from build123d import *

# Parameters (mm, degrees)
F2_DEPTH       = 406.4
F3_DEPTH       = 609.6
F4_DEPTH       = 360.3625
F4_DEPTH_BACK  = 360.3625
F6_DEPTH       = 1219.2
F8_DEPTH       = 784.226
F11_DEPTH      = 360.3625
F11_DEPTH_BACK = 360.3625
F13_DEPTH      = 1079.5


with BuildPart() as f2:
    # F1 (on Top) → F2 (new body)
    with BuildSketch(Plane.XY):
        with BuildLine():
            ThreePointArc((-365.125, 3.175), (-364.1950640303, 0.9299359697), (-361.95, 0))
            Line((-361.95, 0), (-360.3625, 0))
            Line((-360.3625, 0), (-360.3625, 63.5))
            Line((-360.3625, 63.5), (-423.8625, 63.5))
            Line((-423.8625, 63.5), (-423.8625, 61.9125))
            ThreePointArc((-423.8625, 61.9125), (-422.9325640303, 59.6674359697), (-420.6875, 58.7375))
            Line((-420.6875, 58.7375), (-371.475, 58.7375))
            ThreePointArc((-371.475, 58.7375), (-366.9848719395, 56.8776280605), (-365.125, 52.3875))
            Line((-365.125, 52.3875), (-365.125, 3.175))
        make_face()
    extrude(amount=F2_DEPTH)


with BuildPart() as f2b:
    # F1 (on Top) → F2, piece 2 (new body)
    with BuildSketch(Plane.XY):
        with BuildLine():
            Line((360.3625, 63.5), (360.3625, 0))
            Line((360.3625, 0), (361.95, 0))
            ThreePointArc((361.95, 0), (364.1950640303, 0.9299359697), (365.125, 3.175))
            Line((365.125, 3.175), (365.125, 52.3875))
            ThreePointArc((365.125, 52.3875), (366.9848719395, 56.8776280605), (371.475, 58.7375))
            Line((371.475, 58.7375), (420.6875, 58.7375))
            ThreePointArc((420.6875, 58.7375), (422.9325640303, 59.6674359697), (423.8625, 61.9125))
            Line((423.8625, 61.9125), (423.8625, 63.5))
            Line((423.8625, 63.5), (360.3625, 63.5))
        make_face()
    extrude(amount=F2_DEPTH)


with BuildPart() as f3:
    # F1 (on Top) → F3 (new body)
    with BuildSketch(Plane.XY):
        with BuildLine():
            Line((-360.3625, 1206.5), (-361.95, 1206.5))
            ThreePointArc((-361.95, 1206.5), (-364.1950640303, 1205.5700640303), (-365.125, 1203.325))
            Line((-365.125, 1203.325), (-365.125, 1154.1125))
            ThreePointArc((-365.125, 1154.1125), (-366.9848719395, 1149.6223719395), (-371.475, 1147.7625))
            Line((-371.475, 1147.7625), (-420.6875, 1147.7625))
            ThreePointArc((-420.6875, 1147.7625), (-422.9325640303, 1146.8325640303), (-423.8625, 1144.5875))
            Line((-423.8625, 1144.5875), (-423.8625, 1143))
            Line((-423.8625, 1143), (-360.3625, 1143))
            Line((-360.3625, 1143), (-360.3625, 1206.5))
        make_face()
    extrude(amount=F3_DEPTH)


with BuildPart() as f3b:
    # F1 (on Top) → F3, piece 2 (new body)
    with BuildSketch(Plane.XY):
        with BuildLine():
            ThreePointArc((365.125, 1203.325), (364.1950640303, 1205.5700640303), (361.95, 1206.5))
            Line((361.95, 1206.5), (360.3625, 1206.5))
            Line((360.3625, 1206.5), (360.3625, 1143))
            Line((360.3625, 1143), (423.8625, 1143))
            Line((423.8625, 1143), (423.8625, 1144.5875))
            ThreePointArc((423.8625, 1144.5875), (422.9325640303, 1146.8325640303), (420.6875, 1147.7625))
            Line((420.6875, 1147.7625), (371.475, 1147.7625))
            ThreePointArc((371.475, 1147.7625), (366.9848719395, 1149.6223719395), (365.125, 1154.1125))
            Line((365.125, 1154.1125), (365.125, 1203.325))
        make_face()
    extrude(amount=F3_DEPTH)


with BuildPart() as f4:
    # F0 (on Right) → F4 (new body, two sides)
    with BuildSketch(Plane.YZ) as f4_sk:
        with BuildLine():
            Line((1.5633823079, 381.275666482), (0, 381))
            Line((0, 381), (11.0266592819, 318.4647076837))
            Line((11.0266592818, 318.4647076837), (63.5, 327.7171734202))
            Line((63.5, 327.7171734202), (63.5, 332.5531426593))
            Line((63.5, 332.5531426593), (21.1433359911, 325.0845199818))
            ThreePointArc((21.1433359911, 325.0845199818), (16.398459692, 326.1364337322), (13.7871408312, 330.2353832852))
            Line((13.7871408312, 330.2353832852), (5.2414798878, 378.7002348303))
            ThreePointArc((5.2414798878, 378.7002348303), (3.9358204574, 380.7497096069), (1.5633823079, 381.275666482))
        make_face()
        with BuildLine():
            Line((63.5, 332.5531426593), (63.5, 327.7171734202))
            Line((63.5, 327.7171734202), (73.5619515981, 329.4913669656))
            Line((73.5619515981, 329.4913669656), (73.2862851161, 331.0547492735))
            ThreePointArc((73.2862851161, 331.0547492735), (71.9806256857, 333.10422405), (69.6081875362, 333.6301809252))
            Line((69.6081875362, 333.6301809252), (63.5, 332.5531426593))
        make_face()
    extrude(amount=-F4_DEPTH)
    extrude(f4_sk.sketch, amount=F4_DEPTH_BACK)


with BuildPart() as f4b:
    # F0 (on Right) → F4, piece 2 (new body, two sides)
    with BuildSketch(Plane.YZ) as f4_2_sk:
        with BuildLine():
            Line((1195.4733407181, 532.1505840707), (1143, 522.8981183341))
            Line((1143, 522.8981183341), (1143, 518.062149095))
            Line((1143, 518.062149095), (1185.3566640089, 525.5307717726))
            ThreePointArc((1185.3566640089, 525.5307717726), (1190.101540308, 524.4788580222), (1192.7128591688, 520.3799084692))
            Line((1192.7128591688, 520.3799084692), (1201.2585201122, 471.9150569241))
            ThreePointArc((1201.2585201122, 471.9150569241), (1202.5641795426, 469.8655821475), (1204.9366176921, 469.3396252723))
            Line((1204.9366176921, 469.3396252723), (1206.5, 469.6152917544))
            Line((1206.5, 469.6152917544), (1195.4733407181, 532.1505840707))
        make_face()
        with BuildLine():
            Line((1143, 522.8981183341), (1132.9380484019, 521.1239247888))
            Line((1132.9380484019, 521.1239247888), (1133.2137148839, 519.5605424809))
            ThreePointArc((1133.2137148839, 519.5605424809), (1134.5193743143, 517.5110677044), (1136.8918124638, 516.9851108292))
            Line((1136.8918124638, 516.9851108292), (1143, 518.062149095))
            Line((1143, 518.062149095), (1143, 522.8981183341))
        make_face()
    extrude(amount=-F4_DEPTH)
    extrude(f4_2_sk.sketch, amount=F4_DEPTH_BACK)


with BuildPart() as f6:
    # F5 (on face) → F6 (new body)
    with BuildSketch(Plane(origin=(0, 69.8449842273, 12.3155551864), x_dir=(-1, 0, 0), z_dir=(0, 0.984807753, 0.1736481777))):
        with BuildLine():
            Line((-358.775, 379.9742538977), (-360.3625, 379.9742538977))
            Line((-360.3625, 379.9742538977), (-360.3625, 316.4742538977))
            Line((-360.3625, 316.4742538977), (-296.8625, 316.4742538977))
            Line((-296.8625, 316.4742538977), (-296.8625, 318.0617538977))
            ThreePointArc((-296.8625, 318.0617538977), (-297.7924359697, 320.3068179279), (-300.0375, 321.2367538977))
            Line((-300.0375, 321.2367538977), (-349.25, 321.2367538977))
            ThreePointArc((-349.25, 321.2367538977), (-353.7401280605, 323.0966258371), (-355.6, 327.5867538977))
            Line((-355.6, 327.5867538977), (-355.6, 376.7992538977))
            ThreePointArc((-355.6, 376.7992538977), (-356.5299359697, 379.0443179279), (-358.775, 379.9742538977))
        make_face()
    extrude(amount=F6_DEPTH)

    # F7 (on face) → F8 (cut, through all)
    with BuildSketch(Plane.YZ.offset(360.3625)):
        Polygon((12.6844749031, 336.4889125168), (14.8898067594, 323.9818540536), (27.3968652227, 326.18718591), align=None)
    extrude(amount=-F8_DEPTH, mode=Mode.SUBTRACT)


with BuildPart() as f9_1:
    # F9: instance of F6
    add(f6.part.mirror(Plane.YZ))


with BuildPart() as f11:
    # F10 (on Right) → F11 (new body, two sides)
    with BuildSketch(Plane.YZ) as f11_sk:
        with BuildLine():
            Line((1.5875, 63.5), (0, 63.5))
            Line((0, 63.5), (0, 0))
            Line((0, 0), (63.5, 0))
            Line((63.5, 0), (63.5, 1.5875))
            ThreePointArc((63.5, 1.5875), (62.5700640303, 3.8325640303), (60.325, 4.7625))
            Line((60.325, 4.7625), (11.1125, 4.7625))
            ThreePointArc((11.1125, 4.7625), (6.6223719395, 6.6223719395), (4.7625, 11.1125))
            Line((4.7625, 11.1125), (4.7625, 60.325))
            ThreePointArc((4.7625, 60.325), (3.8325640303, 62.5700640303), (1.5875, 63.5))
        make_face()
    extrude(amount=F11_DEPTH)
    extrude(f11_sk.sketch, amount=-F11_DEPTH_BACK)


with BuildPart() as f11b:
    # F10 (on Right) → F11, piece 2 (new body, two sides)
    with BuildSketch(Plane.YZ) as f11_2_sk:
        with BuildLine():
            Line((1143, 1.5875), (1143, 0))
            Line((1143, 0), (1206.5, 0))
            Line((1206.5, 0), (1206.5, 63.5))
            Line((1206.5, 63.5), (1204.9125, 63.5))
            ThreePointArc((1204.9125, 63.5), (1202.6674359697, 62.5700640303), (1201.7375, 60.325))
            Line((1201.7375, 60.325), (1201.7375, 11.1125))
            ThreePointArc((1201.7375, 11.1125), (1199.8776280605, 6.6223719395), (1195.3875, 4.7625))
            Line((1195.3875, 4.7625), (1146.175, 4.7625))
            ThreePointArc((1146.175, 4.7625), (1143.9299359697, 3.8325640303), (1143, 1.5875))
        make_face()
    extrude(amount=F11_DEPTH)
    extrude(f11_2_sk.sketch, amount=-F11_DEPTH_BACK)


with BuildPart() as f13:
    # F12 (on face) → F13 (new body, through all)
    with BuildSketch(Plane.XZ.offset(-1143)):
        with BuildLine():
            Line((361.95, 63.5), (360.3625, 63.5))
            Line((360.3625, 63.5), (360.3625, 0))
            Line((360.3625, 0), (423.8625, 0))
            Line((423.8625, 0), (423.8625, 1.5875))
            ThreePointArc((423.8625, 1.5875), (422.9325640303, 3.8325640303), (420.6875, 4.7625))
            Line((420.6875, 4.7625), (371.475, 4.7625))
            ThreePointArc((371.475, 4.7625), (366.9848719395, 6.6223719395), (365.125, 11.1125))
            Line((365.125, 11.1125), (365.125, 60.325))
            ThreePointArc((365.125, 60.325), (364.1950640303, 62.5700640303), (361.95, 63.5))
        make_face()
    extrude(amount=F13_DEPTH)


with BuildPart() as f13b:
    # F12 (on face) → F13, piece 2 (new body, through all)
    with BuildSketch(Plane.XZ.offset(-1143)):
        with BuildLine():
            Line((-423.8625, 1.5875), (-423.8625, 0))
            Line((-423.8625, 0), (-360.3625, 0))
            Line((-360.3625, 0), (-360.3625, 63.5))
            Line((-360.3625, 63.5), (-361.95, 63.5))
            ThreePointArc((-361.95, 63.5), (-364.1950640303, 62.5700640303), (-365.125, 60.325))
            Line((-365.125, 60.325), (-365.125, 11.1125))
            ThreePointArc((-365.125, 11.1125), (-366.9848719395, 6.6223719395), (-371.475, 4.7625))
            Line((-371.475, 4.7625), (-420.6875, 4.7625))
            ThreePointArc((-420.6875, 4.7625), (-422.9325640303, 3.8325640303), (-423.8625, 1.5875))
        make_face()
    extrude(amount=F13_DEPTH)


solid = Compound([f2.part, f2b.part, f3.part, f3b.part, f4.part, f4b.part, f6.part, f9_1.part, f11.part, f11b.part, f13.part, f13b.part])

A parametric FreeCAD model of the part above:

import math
import FreeCAD as App
import Part
import Sketcher

V = App.Vector
Q = App.Units.Quantity


def add_polygon(sketch, points):
    """Adds a closed chain of lines whose ends are joined by coincident constraints."""
    first, n = sketch.GeometryCount, len(points)
    for a, b in zip(points, points[1:] + points[:1]):
        sketch.addGeometry(Part.LineSegment(App.Vector(*a, 0), App.Vector(*b, 0)), False)
    for i in range(n):
        sketch.addConstraint(Sketcher.Constraint("Coincident", first + i, 2, first + (i + 1) % n, 1))

doc = App.newDocument("Part")
params = doc.addObject("Spreadsheet::Sheet", "Params")
for row, (alias, value) in enumerate([
    ("sketch1_radius", "0.25 in"),
    ("sketch1_width", "2.5 in"),
    ("sketch1_radius2", "0.125 in"),
    ("sketch1_width2", "0.0625 in"),
    ("pad1_length", "16 in"),
    ("sketch2_radius", "0.25 in"),
    ("sketch2_width", "2.5 in"),
    ("sketch2_radius2", "0.125 in"),
    ("sketch2_width2", "0.0625 in"),
    ("pad2_length", "16 in"),
    ("sketch3_radius", "0.25 in"),
    ("sketch3_width", "2.5 in"),
    ("sketch3_radius2", "0.125 in"),
    ("sketch3_width2", "0.0625 in"),
    ("pad3_length", "24 in"),
    ("sketch4_radius", "0.25 in"),
    ("sketch4_width", "2.5 in"),
    ("sketch4_radius2", "0.125 in"),
    ("sketch4_width2", "0.0625 in"),
    ("pad4_length", "24 in"),
    ("sketch5_radius", "0.25 in"),
    ("sketch5_radius2", "0.125 in"),
    ("sketch5_length", "2.5 in"),
    ("sketch5_length2", "0.0625 in"),
    ("pad5_length", "14.1875 in"),
    ("pad5_length2", "14.1875 in"),
    ("sketch6_radius", "0.25 in"),
    ("sketch6_radius2", "0.125 in"),
    ("sketch6_length", "2.5 in"),
    ("sketch6_length2", "0.0625 in"),
    ("pad6_length", "14.1875 in"),
    ("pad6_length2", "14.1875 in"),
    ("sketch7_radius", "0.25 in"),
    ("sketch7_width", "2.5 in"),
    ("sketch7_radius2", "0.125 in"),
    ("sketch7_width2", "0.0625 in"),
    ("pad7_length", "48 in"),
    ("sketch8_length", "0.5 in"),
    ("sketch9_radius", "0.25 in"),
    ("sketch9_width", "2.5 in"),
    ("sketch9_radius2", "0.125 in"),
    ("sketch9_width2", "0.0625 in"),
    ("pad8_length", "14.1875 in"),
    ("pad8_length2", "14.1875 in"),
    ("sketch10_radius", "0.25 in"),
    ("sketch10_width", "2.5 in"),
    ("sketch10_radius2", "0.125 in"),
    ("sketch10_width2", "0.0625 in"),
    ("pad9_length", "14.1875 in"),
    ("pad9_length2", "14.1875 in"),
    ("sketch11_radius", "0.25 in"),
    ("sketch11_width", "2.5 in"),
    ("sketch11_radius2", "0.125 in"),
    ("sketch11_width2", "0.0625 in"),
    ("pad10_length", "42.5 in"),
    ("sketch12_radius", "0.25 in"),
    ("sketch12_width", "2.5 in"),
    ("sketch12_radius2", "0.125 in"),
    ("sketch12_width2", "0.0625 in"),
    ("pad11_length", "42.5 in"),
], start=1):
    params.set(f"A{row}", alias)
    params.set(f"B{row}", "=" + value)
    params.setAlias(f"B{row}", alias)

body = doc.addObject("PartDesign::Body", "Body")

sketch1 = doc.addObject("Sketcher::SketchObject", "Sketch")
body.addObject(sketch1)
sketch1.AttachmentSupport = (doc.XY_Plane, [""])
sketch1.MapMode = "FlatFace"
sketch1.addGeometry([
    Part.ArcOfCircle(Part.Circle(V(-361.9, 3.2, 0), V(0, 0, 1), 3.2), math.radians(180), math.radians(270)),
    Part.LineSegment(V(-361.9, 0, 0), V(-360.4, 0, 0)),
    Part.LineSegment(V(-360.4, 0, 0), V(-360.4, 63.5, 0)),
    Part.LineSegment(V(-360.4, 63.5, 0), V(-423.9, 63.5, 0)),
    Part.LineSegment(V(-423.9, 63.5, 0), V(-423.9, 61.9, 0)),
    Part.ArcOfCircle(Part.Circle(V(-420.7, 61.9, 0), V(0, 0, 1), 3.2), math.radians(180), math.radians(270)),
    Part.LineSegment(V(-420.7, 58.7, 0), V(-371.5, 58.7, 0)),
    Part.ArcOfCircle(Part.Circle(V(-371.5, 52.4, 0), V(0, 0, 1), 6.3), math.radians(0), math.radians(90)),
    Part.LineSegment(V(-365.1, 52.4, 0), V(-365.1, 3.2, 0)),
], False)
sketch1.addConstraint([
    Sketcher.Constraint("Tangent", 0, 2, 1, 1),
    Sketcher.Constraint("Coincident", 1, 2, 2, 1),
    Sketcher.Constraint("Coincident", 2, 2, 3, 1),
    Sketcher.Constraint("Coincident", 3, 2, 4, 1),
    Sketcher.Constraint("Tangent", 4, 2, 5, 1),
    Sketcher.Constraint("Tangent", 5, 2, 6, 1),
    Sketcher.Constraint("Tangent", 6, 2, 7, 2),
    Sketcher.Constraint("Tangent", 7, 1, 8, 1),
    Sketcher.Constraint("Tangent", 8, 2, 0, 1),
    Sketcher.Constraint("Horizontal", 1),
    Sketcher.Constraint("Vertical", 2),
    Sketcher.Constraint("Horizontal", 3),
    Sketcher.Constraint("Vertical", 4),
    Sketcher.Constraint("Horizontal", 6),
    Sketcher.Constraint("Vertical", 8),
    Sketcher.Constraint("Equal", 0, 5),
    Sketcher.Constraint("PointOnObject", 0, 2, -1),
    Sketcher.Constraint("Equal", 3, 2),
    Sketcher.Constraint("Equal", 1, 4),
    Sketcher.Constraint("Radius", 7, Q("0.25 in")),
    Sketcher.Constraint("DistanceX", 3, 2, 3, 1, Q("2.5 in")),
    Sketcher.Constraint("Radius", 0, Q("0.125 in")),
    Sketcher.Constraint("DistanceX", 1, 1, 1, 2, Q("0.0625 in")),
    Sketcher.Constraint("DistanceX", 0, 3, -1, 1, Q("14.25 in")),
])
sketch1.setExpression("Constraints[19]", "Params.sketch1_radius")
sketch1.setExpression("Constraints[20]", "Params.sketch1_width")
sketch1.setExpression("Constraints[21]", "Params.sketch1_radius2")
sketch1.setExpression("Constraints[22]", "Params.sketch1_width2")
pad1 = doc.addObject("PartDesign::Pad", "Pad")
body.addObject(pad1)
pad1.Profile = sketch1
pad1.setExpression("Length", "Params.pad1_length")
body2 = doc.addObject("PartDesign::Body", "Body001")

sketch2 = doc.addObject("Sketcher::SketchObject", "Sketch001")
body2.addObject(sketch2)
sketch2.AttachmentSupport = (doc.getObject("XY_Plane001"), [""])
sketch2.MapMode = "FlatFace"
sketch2.addGeometry([
    Part.LineSegment(V(360.4, 63.5, 0), V(360.4, 0, 0)),
    Part.LineSegment(V(360.4, 0, 0), V(361.9, 0, 0)),
    Part.ArcOfCircle(Part.Circle(V(361.9, 3.2, 0), V(0, 0, 1), 3.2), math.radians(-90), math.radians(0)),
    Part.LineSegment(V(365.1, 3.2, 0), V(365.1, 52.4, 0)),
    Part.ArcOfCircle(Part.Circle(V(371.5, 52.4, 0), V(0, 0, 1), 6.3), math.radians(90), math.radians(180)),
    Part.LineSegment(V(371.5, 58.7, 0), V(420.7, 58.7, 0)),
    Part.ArcOfCircle(Part.Circle(V(420.7, 61.9, 0), V(0, 0, 1), 3.2), math.radians(-90), math.radians(0)),
    Part.LineSegment(V(423.9, 61.9, 0), V(423.9, 63.5, 0)),
    Part.LineSegment(V(423.9, 63.5, 0), V(360.4, 63.5, 0)),
], False)
sketch2.addConstraint([
    Sketcher.Constraint("Coincident", 0, 2, 1, 1),
    Sketcher.Constraint("Tangent", 1, 2, 2, 1),
    Sketcher.Constraint("Tangent", 2, 2, 3, 1),
    Sketcher.Constraint("Tangent", 3, 2, 4, 2),
    Sketcher.Constraint("Tangent", 4, 1, 5, 1),
    Sketcher.Constraint("Tangent", 5, 2, 6, 1),
    Sketcher.Constraint("Tangent", 6, 2, 7, 1),
    Sketcher.Constraint("Coincident", 7, 2, 8, 1),
    Sketcher.Constraint("Coincident", 8, 2, 0, 1),
    Sketcher.Constraint("Vertical", 0),
    Sketcher.Constraint("Horizontal", 1),
    Sketcher.Constraint("Vertical", 3),
    Sketcher.Constraint("Horizontal", 5),
    Sketcher.Constraint("Vertical", 7),
    Sketcher.Constraint("Horizontal", 8),
    Sketcher.Constraint("Equal", 2, 6),
    Sketcher.Constraint("PointOnObject", 0, 2, -1),
    Sketcher.Constraint("Equal", 8, 0),
    Sketcher.Constraint("Equal", 5, 3),
    Sketcher.Constraint("Radius", 4, Q("0.25 in")),
    Sketcher.Constraint("DistanceX", 8, 2, 8, 1, Q("2.5 in")),
    Sketcher.Constraint("Radius", 2, Q("0.125 in")),
    Sketcher.Constraint("DistanceX", 1, 1, 1, 2, Q("0.0625 in")),
    Sketcher.Constraint("DistanceX", -1, 1, 2, 3, Q("14.25 in")),
])
sketch2.setExpression("Constraints[19]", "Params.sketch2_radius")
sketch2.setExpression("Constraints[20]", "Params.sketch2_width")
sketch2.setExpression("Constraints[21]", "Params.sketch2_radius2")
sketch2.setExpression("Constraints[22]", "Params.sketch2_width2")
pad2 = doc.addObject("PartDesign::Pad", "Pad001")
body2.addObject(pad2)
pad2.Profile = sketch2
pad2.setExpression("Length", "Params.pad2_length")
body3 = doc.addObject("PartDesign::Body", "Body002")

sketch3 = doc.addObject("Sketcher::SketchObject", "Sketch002")
body3.addObject(sketch3)
sketch3.AttachmentSupport = (doc.getObject("XY_Plane002"), [""])
sketch3.MapMode = "FlatFace"
sketch3.addGeometry([
    Part.LineSegment(V(-360.4, 1206.5, 0), V(-361.9, 1206.5, 0)),
    Part.ArcOfCircle(Part.Circle(V(-361.9, 1203.3, 0), V(0, 0, 1), 3.2), math.radians(90), math.radians(180)),
    Part.LineSegment(V(-365.1, 1203.3, 0), V(-365.1, 1154.1, 0)),
    Part.ArcOfCircle(Part.Circle(V(-371.5, 1154.1, 0), V(0, 0, 1), 6.3), math.radians(-90), math.radians(0)),
    Part.LineSegment(V(-371.5, 1147.8, 0), V(-420.7, 1147.8, 0)),
    Part.ArcOfCircle(Part.Circle(V(-420.7, 1144.6, 0), V(0, 0, 1), 3.2), math.radians(90), math.radians(180)),
    Part.LineSegment(V(-423.9, 1144.6, 0), V(-423.9, 1143, 0)),
    Part.LineSegment(V(-423.9, 1143, 0), V(-360.4, 1143, 0)),
    Part.LineSegment(V(-360.4, 1143, 0), V(-360.4, 1206.5, 0)),
], False)
sketch3.addConstraint([
    Sketcher.Constraint("Tangent", 0, 2, 1, 1),
    Sketcher.Constraint("Tangent", 1, 2, 2, 1),
    Sketcher.Constraint("Tangent", 2, 2, 3, 2),
    Sketcher.Constraint("Tangent", 3, 1, 4, 1),
    Sketcher.Constraint("Tangent", 4, 2, 5, 1),
    Sketcher.Constraint("Tangent", 5, 2, 6, 1),
    Sketcher.Constraint("Coincident", 6, 2, 7, 1),
    Sketcher.Constraint("Coincident", 7, 2, 8, 1),
    Sketcher.Constraint("Coincident", 8, 2, 0, 1),
    Sketcher.Constraint("Horizontal", 0),
    Sketcher.Constraint("Vertical", 2),
    Sketcher.Constraint("Horizontal", 4),
    Sketcher.Constraint("Vertical", 6),
    Sketcher.Constraint("Horizontal", 7),
    Sketcher.Constraint("Vertical", 8),
    Sketcher.Constraint("Equal", 1, 5),
    Sketcher.Constraint("Equal", 4, 2),
    Sketcher.Constraint("Equal", 0, 6),
    Sketcher.Constraint("Radius", 3, Q("0.25 in")),
    Sketcher.Constraint("DistanceX", 7, 1, 7, 2, Q("2.5 in")),
    Sketcher.Constraint("DistanceY", -1, 1, 6, 2, Q("45 in")),
    Sketcher.Constraint("Radius", 1, Q("0.125 in")),
    Sketcher.Constraint("DistanceX", 0, 2, 0, 1, Q("0.0625 in")),
    Sketcher.Constraint("DistanceX", 1, 3, -1, 1, Q("14.25 in")),
])
sketch3.setExpression("Constraints[18]", "Params.sketch3_radius")
sketch3.setExpression("Constraints[19]", "Params.sketch3_width")
sketch3.setExpression("Constraints[21]", "Params.sketch3_radius2")
sketch3.setExpression("Constraints[22]", "Params.sketch3_width2")
pad3 = doc.addObject("PartDesign::Pad", "Pad002")
body3.addObject(pad3)
pad3.Profile = sketch3
pad3.setExpression("Length", "Params.pad3_length")
body4 = doc.addObject("PartDesign::Body", "Body003")

sketch4 = doc.addObject("Sketcher::SketchObject", "Sketch003")
body4.addObject(sketch4)
sketch4.AttachmentSupport = (doc.getObject("XY_Plane003"), [""])
sketch4.MapMode = "FlatFace"
sketch4.addGeometry([
    Part.ArcOfCircle(Part.Circle(V(361.9, 1203.3, 0), V(0, 0, 1), 3.2), math.radians(0), math.radians(90)),
    Part.LineSegment(V(361.9, 1206.5, 0), V(360.4, 1206.5, 0)),
    Part.LineSegment(V(360.4, 1206.5, 0), V(360.4, 1143, 0)),
    Part.LineSegment(V(360.4, 1143, 0), V(423.9, 1143, 0)),
    Part.LineSegment(V(423.9, 1143, 0), V(423.9, 1144.6, 0)),
    Part.ArcOfCircle(Part.Circle(V(420.7, 1144.6, 0), V(0, 0, 1), 3.2), math.radians(0), math.radians(90)),
    Part.LineSegment(V(420.7, 1147.8, 0), V(371.5, 1147.8, 0)),
    Part.ArcOfCircle(Part.Circle(V(371.5, 1154.1, 0), V(0, 0, 1), 6.3), math.radians(180), math.radians(270)),
    Part.LineSegment(V(365.1, 1154.1, 0), V(365.1, 1203.3, 0)),
], False)
sketch4.addConstraint([
    Sketcher.Constraint("Tangent", 0, 2, 1, 1),
    Sketcher.Constraint("Coincident", 1, 2, 2, 1),
    Sketcher.Constraint("Coincident", 2, 2, 3, 1),
    Sketcher.Constraint("Coincident", 3, 2, 4, 1),
    Sketcher.Constraint("Tangent", 4, 2, 5, 1),
    Sketcher.Constraint("Tangent", 5, 2, 6, 1),
    Sketcher.Constraint("Tangent", 6, 2, 7, 2),
    Sketcher.Constraint("Tangent", 7, 1, 8, 1),
    Sketcher.Constraint("Tangent", 8, 2, 0, 1),
    Sketcher.Constraint("Horizontal", 1),
    Sketcher.Constraint("Vertical", 2),
    Sketcher.Constraint("Horizontal", 3),
    Sketcher.Constraint("Vertical", 4),
    Sketcher.Constraint("Horizontal", 6),
    Sketcher.Constraint("Vertical", 8),
    Sketcher.Constraint("Equal", 0, 5),
    Sketcher.Constraint("Equal", 3, 2),
    Sketcher.Constraint("Equal", 1, 4),
    Sketcher.Constraint("Radius", 7, Q("0.25 in")),
    Sketcher.Constraint("DistanceX", 3, 1, 3, 2, Q("2.5 in")),
    Sketcher.Constraint("DistanceY", -1, 1, 2, 2, Q("45 in")),
    Sketcher.Constraint("Radius", 0, Q("0.125 in")),
    Sketcher.Constraint("DistanceX", 1, 2, 1, 1, Q("0.0625 in")),
    Sketcher.Constraint("DistanceX", -1, 1, 0, 3, Q("14.25 in")),
])
sketch4.setExpression("Constraints[18]", "Params.sketch4_radius")
sketch4.setExpression("Constraints[19]", "Params.sketch4_width")
sketch4.setExpression("Constraints[21]", "Params.sketch4_radius2")
sketch4.setExpression("Constraints[22]", "Params.sketch4_width2")
pad4 = doc.addObject("PartDesign::Pad", "Pad003")
body4.addObject(pad4)
pad4.Profile = sketch4
pad4.setExpression("Length", "Params.pad4_length")
body5 = doc.addObject("PartDesign::Body", "Body004")

sketch5 = doc.addObject("Sketcher::SketchObject", "Sketch004")
body5.addObject(sketch5)
sketch5.AttachmentSupport = (doc.getObject("YZ_Plane004"), [""])
sketch5.MapMode = "FlatFace"
sketch5.addGeometry([
    Part.LineSegment(V(1.6, 381.3, 0), V(0, 381, 0)),
    Part.LineSegment(V(0, 381, 0), V(11, 318.5, 0)),
    Part.LineSegment(V(11, 318.5, 0), V(63.5, 327.7, 0)),
    Part.LineSegment(V(63.5, 327.7, 0), V(73.6, 329.5, 0)),
    Part.LineSegment(V(73.6, 329.5, 0), V(73.3, 331.1, 0)),
    Part.ArcOfCircle(Part.Circle(V(70.2, 330.5, 0), V(0, 0, 1), 3.2), math.radians(10), math.radians(100)),
    Part.LineSegment(V(69.6, 333.6, 0), V(63.5, 332.6, 0)),
    Part.LineSegment(V(63.5, 332.6, 0), V(21.1, 325.1, 0)),
    Part.ArcOfCircle(Part.Circle(V(20, 331.3, 0), V(0, 0, 1), 6.3), math.radians(-170), math.radians(-80)),
    Part.LineSegment(V(13.8, 330.2, 0), V(5.2, 378.7, 0)),
    Part.ArcOfCircle(Part.Circle(V(2.1, 378.1, 0), V(0, 0, 1), 3.2), math.radians(10), math.radians(100)),
], False)
sketch5.addConstraint([
    Sketcher.Constraint("Coincident", 0, 2, 1, 1),
    Sketcher.Constraint("Coincident", 1, 2, 2, 1),
    Sketcher.Constraint("Coincident", 2, 2, 3, 1),
    Sketcher.Constraint("Coincident", 3, 2, 4, 1),
    Sketcher.Constraint("Tangent", 4, 2, 5, 1),
    Sketcher.Constraint("Tangent", 5, 2, 6, 1),
    Sketcher.Constraint("Coincident", 6, 2, 7, 1),
    Sketcher.Constraint("Tangent", 7, 2, 8, 2),
    Sketcher.Constraint("Tangent", 8, 1, 9, 1),
    Sketcher.Constraint("Tangent", 9, 2, 10, 1),
    Sketcher.Constraint("Tangent", 10, 2, 0, 1),
    Sketcher.Constraint("Equal", 5, 10),
    Sketcher.Constraint("PointOnObject", 0, 2, -2),
    Sketcher.Constraint("Perpendicular", 0, 1),
    Sketcher.Constraint("Perpendicular", 1, 2),
    Sketcher.Constraint("Parallel", 2, 3),
    Sketcher.Constraint("Perpendicular", 3, 4),
    Sketcher.Constraint("Perpendicular", 4, 6),
    Sketcher.Constraint("Parallel", 6, 7),
    Sketcher.Constraint("Perpendicular", 7, 9),
    Sketcher.Constraint("Vertical", 2, 2, 6, 2),
    Sketcher.Constraint("Equal", 0, 4),
    Sketcher.Constraint("Radius", 8, Q("0.25 in")),
    Sketcher.Constraint("DistanceY", -1, 1, 0, 2, Q("15 in")),
    Sketcher.Constraint("Angle", 0, Q("-170 deg")),
    Sketcher.Constraint("Radius", 5, Q("0.125 in")),
    Sketcher.Constraint("Distance", 1, Q("2.5 in")),
    Sketcher.Constraint("DistanceX", -1, 1, 2, 2, Q("2.5 in")),
    Sketcher.Constraint("Distance", 0, Q("0.0625 in")),
    Sketcher.Constraint("DistanceY", 4, 2, 8, 3, Q("0.2833 mm")),
])
sketch5.setExpression("Constraints[22]", "Params.sketch5_radius")
sketch5.setExpression("Constraints[25]", "Params.sketch5_radius2")
sketch5.setExpression("Constraints[26]", "Params.sketch5_length")
sketch5.setExpression("Constraints[28]", "Params.sketch5_length2")
pad5 = doc.addObject("PartDesign::Pad", "Pad004")
body5.addObject(pad5)
pad5.Profile = sketch5
pad5.Type = "TwoLengths"
pad5.setExpression("Length", "Params.pad5_length")
pad5.setExpression("Length2", "Params.pad5_length2")
pad5.Reversed = True
body6 = doc.addObject("PartDesign::Body", "Body005")

sketch6 = doc.addObject("Sketcher::SketchObject", "Sketch005")
body6.addObject(sketch6)
sketch6.AttachmentSupport = (doc.getObject("YZ_Plane005"), [""])
sketch6.MapMode = "FlatFace"
sketch6.addGeometry([
    Part.LineSegment(V(1195.5, 532.2, 0), V(1143, 522.9, 0)),
    Part.LineSegment(V(1143, 522.9, 0), V(1132.9, 521.1, 0)),
    Part.LineSegment(V(1132.9, 521.1, 0), V(1133.2, 519.6, 0)),
    Part.ArcOfCircle(Part.Circle(V(1136.3, 520.1, 0), V(0, 0, 1), 3.2), math.radians(-170), math.radians(-80)),
    Part.LineSegment(V(1136.9, 517, 0), V(1143, 518.1, 0)),
    Part.LineSegment(V(1143, 518.1, 0), V(1185.4, 525.5, 0)),
    Part.ArcOfCircle(Part.Circle(V(1186.5, 519.3, 0), V(0, 0, 1), 6.3), math.radians(10), math.radians(100)),
    Part.LineSegment(V(1192.7, 520.4, 0), V(1201.3, 471.9, 0)),
    Part.ArcOfCircle(Part.Circle(V(1204.4, 472.5, 0), V(0, 0, 1), 3.2), math.radians(-170), math.radians(-80)),
    Part.LineSegment(V(1204.9, 469.3, 0), V(1206.5, 469.6, 0)),
    Part.LineSegment(V(1206.5, 469.6, 0), V(1195.5, 532.2, 0)),
], False)
sketch6.addConstraint([
    Sketcher.Constraint("Coincident", 0, 2, 1, 1),
    Sketcher.Constraint("Coincident", 1, 2, 2, 1),
    Sketcher.Constraint("Tangent", 2, 2, 3, 1),
    Sketcher.Constraint("Tangent", 3, 2, 4, 1),
    Sketcher.Constraint("Coincident", 4, 2, 5, 1),
    Sketcher.Constraint("Tangent", 5, 2, 6, 2),
    Sketcher.Constraint("Tangent", 6, 1, 7, 1),
    Sketcher.Constraint("Tangent", 7, 2, 8, 1),
    Sketcher.Constraint("Tangent", 8, 2, 9, 1),
    Sketcher.Constraint("Coincident", 9, 2, 10, 1),
    Sketcher.Constraint("Coincident", 10, 2, 0, 1),
    Sketcher.Constraint("Equal", 3, 8),
    Sketcher.Constraint("Parallel", 0, 1),
    Sketcher.Constraint("Perpendicular", 1, 2),
    Sketcher.Constraint("Perpendicular", 2, 4),
    Sketcher.Constraint("Parallel", 4, 5),
    Sketcher.Constraint("Perpendicular", 5, 7),
    Sketcher.Constraint("Perpendicular", 7, 9),
    Sketcher.Constraint("Perpendicular", 9, 10),
    Sketcher.Constraint("Vertical", 0, 2, 4, 2),
    Sketcher.Constraint("Equal", 2, 9),
    Sketcher.Constraint("Radius", 6, Q("0.25 in")),
    Sketcher.Constraint("DistanceX", -1, 1, 0, 2, Q("45 in")),
    Sketcher.Constraint("Angle", 0, Q("-170 deg")),
    Sketcher.Constraint("Radius", 3, Q("0.125 in")),
    Sketcher.Constraint("Distance", 10, Q("2.5 in")),
    Sketcher.Constraint("DistanceX", -1, 1, 9, 2, Q("47.5 in")),
    Sketcher.Constraint("Distance", 2, Q("0.0625 in")),
    Sketcher.Constraint("DistanceY", 6, 3, 2, 2, Q("0.2833 mm")),
    Sketcher.Constraint("DistanceY", -1, 1, 8, 3, Q("472.46639 mm")),
])
sketch6.setExpression("Constraints[21]", "Params.sketch6_radius")
sketch6.setExpression("Constraints[24]", "Params.sketch6_radius2")
sketch6.setExpression("Constraints[25]", "Params.sketch6_length")
sketch6.setExpression("Constraints[27]", "Params.sketch6_length2")
pad6 = doc.addObject("PartDesign::Pad", "Pad005")
body6.addObject(pad6)
pad6.Profile = sketch6
pad6.Type = "TwoLengths"
pad6.setExpression("Length", "Params.pad6_length")
pad6.setExpression("Length2", "Params.pad6_length2")
pad6.Reversed = True
body7 = doc.addObject("PartDesign::Body", "Body006")

sketch7 = doc.addObject("Sketcher::SketchObject", "Sketch006")
body7.addObject(sketch7)
sketch7.Placement = App.Placement(V(0, 69.844984, 12.315555), App.Rotation(V(-1, 0, 0), V(0, -0.173648178, 0.984807753), V(0, 0.984807753, 0.173648178), "ZXY"))
sketch7.addGeometry([
    Part.LineSegment(V(-358.8, 380, 0), V(-360.4, 380, 0)),
    Part.LineSegment(V(-360.4, 380, 0), V(-360.4, 316.5, 0)),
    Part.LineSegment(V(-360.4, 316.5, 0), V(-296.9, 316.5, 0)),
    Part.LineSegment(V(-296.9, 316.5, 0), V(-296.9, 318.1, 0)),
    Part.ArcOfCircle(Part.Circle(V(-300, 318.1, 0), V(0, 0, 1), 3.2), math.radians(0), math.radians(90)),
    Part.LineSegment(V(-300, 321.2, 0), V(-349.2, 321.2, 0)),
    Part.ArcOfCircle(Part.Circle(V(-349.2, 327.6, 0), V(0, 0, 1), 6.3), math.radians(180), math.radians(270)),
    Part.LineSegment(V(-355.6, 327.6, 0), V(-355.6, 376.8, 0)),
    Part.ArcOfCircle(Part.Circle(V(-358.8, 376.8, 0), V(0, 0, 1), 3.2), math.radians(0), math.radians(90)),
], False)
sketch7.addConstraint([
    Sketcher.Constraint("Coincident", 0, 2, 1, 1),
    Sketcher.Constraint("Coincident", 1, 2, 2, 1),
    Sketcher.Constraint("Coincident", 2, 2, 3, 1),
    Sketcher.Constraint("Tangent", 3, 2, 4, 1),
    Sketcher.Constraint("Tangent", 4, 2, 5, 1),
    Sketcher.Constraint("Tangent", 5, 2, 6, 2),
    Sketcher.Constraint("Tangent", 6, 1, 7, 1),
    Sketcher.Constraint("Tangent", 7, 2, 8, 1),
    Sketcher.Constraint("Tangent", 8, 2, 0, 1),
    Sketcher.Constraint("Horizontal", 0),
    Sketcher.Constraint("Vertical", 1),
    Sketcher.Constraint("Horizontal", 2),
    Sketcher.Constraint("Vertical", 3),
    Sketcher.Constraint("Horizontal", 5),
    Sketcher.Constraint("Vertical", 7),
    Sketcher.Constraint("Equal", 4, 8),
    Sketcher.Constraint("Equal", 2, 1),
    Sketcher.Constraint("Equal", 0, 3),
    Sketcher.Constraint("Radius", 6, Q("0.25 in")),
    Sketcher.Constraint("DistanceX", 2, 1, 2, 2, Q("2.5 in")),
    Sketcher.Constraint("DistanceX", 6, 1, -1, 1, Q("14 in")),
    Sketcher.Constraint("Radius", 4, Q("0.125 in")),
    Sketcher.Constraint("DistanceX", 0, 2, 0, 1, Q("0.0625 in")),
    Sketcher.Constraint("DistanceY", -1, 1, 4, 3, Q("318.061754 mm")),
])
sketch7.setExpression("Constraints[18]", "Params.sketch7_radius")
sketch7.setExpression("Constraints[19]", "Params.sketch7_width")
sketch7.setExpression("Constraints[21]", "Params.sketch7_radius2")
sketch7.setExpression("Constraints[22]", "Params.sketch7_width2")
pad7 = doc.addObject("PartDesign::Pad", "Pad006")
body7.addObject(pad7)
pad7.Profile = sketch7
pad7.setExpression("Length", "Params.pad7_length")

sketch8 = doc.addObject("Sketcher::SketchObject", "Sketch007")
body7.addObject(sketch8)
sketch8.AttachmentSupport = (doc.getObject("YZ_Plane006"), [""])
sketch8.MapMode = "FlatFace"
sketch8.AttachmentOffset = App.Placement(V(0, 0, 14.1875 * 25.4), App.Rotation())
add_polygon(sketch8, [(13, 336), (15, 324), (27, 326)])
sketch8.addConstraint([
    Sketcher.Constraint("Perpendicular", 0, 1),
    Sketcher.Constraint("Equal", 0, 1),
    Sketcher.Constraint("Angle", 0, Q("-80 deg")),
    Sketcher.Constraint("Distance", 0, Q("0.5 in")),
    Sketcher.Constraint("DistanceX", -1, 1, 0, 2, Q("14.889807 mm")),
    Sketcher.Constraint("DistanceY", -1, 1, 0, 2, Q("323.981854 mm")),
])
sketch8.setExpression("Constraints[6]", "Params.sketch8_length")
pocket1 = doc.addObject("PartDesign::Pocket", "Pocket")
body7.addObject(pocket1)
pocket1.Profile = sketch8
pocket1.Type = "ThroughAll"
body8 = doc.addObject("PartDesign::Body", "Body007")
doc.recompute()

mirroring = doc.addObject("Part::Mirroring", "Mirroring")
mirroring.Source = body7
mirroring.Base = V(0, 0, 0)
mirroring.Normal = V(1, 0, 0)
body8.BaseFeature = mirroring
doc.recompute()
body9 = doc.addObject("PartDesign::Body", "Body008")

sketch9 = doc.addObject("Sketcher::SketchObject", "Sketch008")
body9.addObject(sketch9)
sketch9.AttachmentSupport = (doc.getObject("YZ_Plane008"), [""])
sketch9.MapMode = "FlatFace"
sketch9.addGeometry([
    Part.LineSegment(V(1.6, 63.5, 0), V(0, 63.5, 0)),
    Part.LineSegment(V(0, 63.5, 0), V(0, 0, 0)),
    Part.LineSegment(V(0, 0, 0), V(63.5, 0, 0)),
    Part.LineSegment(V(63.5, 0, 0), V(63.5, 1.6, 0)),
    Part.ArcOfCircle(Part.Circle(V(60.3, 1.6, 0), V(0, 0, 1), 3.2), math.radians(0), math.radians(90)),
    Part.LineSegment(V(60.3, 4.8, 0), V(11.1, 4.8, 0)),
    Part.ArcOfCircle(Part.Circle(V(11.1, 11.1, 0), V(0, 0, 1), 6.3), math.radians(180), math.radians(270)),
    Part.LineSegment(V(4.8, 11.1, 0), V(4.8, 60.3, 0)),
    Part.ArcOfCircle(Part.Circle(V(1.6, 60.3, 0), V(0, 0, 1), 3.2), math.radians(0), math.radians(90)),
], False)
sketch9.addConstraint([
    Sketcher.Constraint("Coincident", 0, 2, 1, 1),
    Sketcher.Constraint("Coincident", 1, 2, 2, 1),
    Sketcher.Constraint("Coincident", 2, 2, 3, 1),
    Sketcher.Constraint("Tangent", 3, 2, 4, 1),
    Sketcher.Constraint("Tangent", 4, 2, 5, 1),
    Sketcher.Constraint("Tangent", 5, 2, 6, 2),
    Sketcher.Constraint("Tangent", 6, 1, 7, 1),
    Sketcher.Constraint("Tangent", 7, 2, 8, 1),
    Sketcher.Constraint("Tangent", 8, 2, 0, 1),
    Sketcher.Constraint("Horizontal", 0),
    Sketcher.Constraint("Vertical", 1),
    Sketcher.Constraint("Horizontal", 2),
    Sketcher.Constraint("Vertical", 3),
    Sketcher.Constraint("Horizontal", 5),
    Sketcher.Constraint("Vertical", 7),
    Sketcher.Constraint("Coincident", 1, 2, -1, 1),
    Sketcher.Constraint("Equal", 4, 8),
    Sketcher.Constraint("Equal", 2, 1),
    Sketcher.Constraint("Equal", 0, 3),
    Sketcher.Constraint("Radius", 6, Q("0.25 in")),
    Sketcher.Constraint("DistanceX", 2, 1, 2, 2, Q("2.5 in")),
    Sketcher.Constraint("Radius", 4, Q("0.125 in")),
    Sketcher.Constraint("DistanceX", 0, 2, 0, 1, Q("0.0625 in")),
])
sketch9.setExpression("Constraints[19]", "Params.sketch9_radius")
sketch9.setExpression("Constraints[20]", "Params.sketch9_width")
sketch9.setExpression("Constraints[21]", "Params.sketch9_radius2")
sketch9.setExpression("Constraints[22]", "Params.sketch9_width2")
pad8 = doc.addObject("PartDesign::Pad", "Pad007")
body9.addObject(pad8)
pad8.Profile = sketch9
pad8.Type = "TwoLengths"
pad8.setExpression("Length", "Params.pad8_length")
pad8.setExpression("Length2", "Params.pad8_length2")
body10 = doc.addObject("PartDesign::Body", "Body009")

sketch10 = doc.addObject("Sketcher::SketchObject", "Sketch009")
body10.addObject(sketch10)
sketch10.AttachmentSupport = (doc.getObject("YZ_Plane009"), [""])
sketch10.MapMode = "FlatFace"
sketch10.addGeometry([
    Part.LineSegment(V(1143, 1.6, 0), V(1143, 0, 0)),
    Part.LineSegment(V(1143, 0, 0), V(1206.5, 0, 0)),
    Part.LineSegment(V(1206.5, 0, 0), V(1206.5, 63.5, 0)),
    Part.LineSegment(V(1206.5, 63.5, 0), V(1204.9, 63.5, 0)),
    Part.ArcOfCircle(Part.Circle(V(1204.9, 60.3, 0), V(0, 0, 1), 3.2), math.radians(90), math.radians(180)),
    Part.LineSegment(V(1201.7, 60.3, 0), V(1201.7, 11.1, 0)),
    Part.ArcOfCircle(Part.Circle(V(1195.4, 11.1, 0), V(0, 0, 1), 6.3), math.radians(-90), math.radians(0)),
    Part.LineSegment(V(1195.4, 4.8, 0), V(1146.2, 4.8, 0)),
    Part.ArcOfCircle(Part.Circle(V(1146.2, 1.6, 0), V(0, 0, 1), 3.2), math.radians(90), math.radians(180)),
], False)
sketch10.addConstraint([
    Sketcher.Constraint("Coincident", 0, 2, 1, 1),
    Sketcher.Constraint("Coincident", 1, 2, 2, 1),
    Sketcher.Constraint("Coincident", 2, 2, 3, 1),
    Sketcher.Constraint("Tangent", 3, 2, 4, 1),
    Sketcher.Constraint("Tangent", 4, 2, 5, 1),
    Sketcher.Constraint("Tangent", 5, 2, 6, 2),
    Sketcher.Constraint("Tangent", 6, 1, 7, 1),
    Sketcher.Constraint("Tangent", 7, 2, 8, 1),
    Sketcher.Constraint("Tangent", 8, 2, 0, 1),
    Sketcher.Constraint("Vertical", 0),
    Sketcher.Constraint("Horizontal", 1),
    Sketcher.Constraint("Vertical", 2),
    Sketcher.Constraint("Horizontal", 3),
    Sketcher.Constraint("Vertical", 5),
    Sketcher.Constraint("Horizontal", 7),
    Sketcher.Constraint("Equal", 4, 8),
    Sketcher.Constraint("PointOnObject", 0, 2, -1),
    Sketcher.Constraint("Equal", 3, 0),
    Sketcher.Constraint("Equal", 1, 2),
    Sketcher.Constraint("Radius", 6, Q("0.25 in")),
    Sketcher.Constraint("DistanceX", 1, 1, 1, 2, Q("2.5 in")),
    Sketcher.Constraint("DistanceX", -1, 1, 0, 2, Q("45 in")),
    Sketcher.Constraint("Radius", 4, Q("0.125 in")),
    Sketcher.Constraint("DistanceX", 3, 2, 3, 1, Q("0.0625 in")),
])
sketch10.setExpression("Constraints[19]", "Params.sketch10_radius")
sketch10.setExpression("Constraints[20]", "Params.sketch10_width")
sketch10.setExpression("Constraints[22]", "Params.sketch10_radius2")
sketch10.setExpression("Constraints[23]", "Params.sketch10_width2")
pad9 = doc.addObject("PartDesign::Pad", "Pad008")
body10.addObject(pad9)
pad9.Profile = sketch10
pad9.Type = "TwoLengths"
pad9.setExpression("Length", "Params.pad9_length")
pad9.setExpression("Length2", "Params.pad9_length2")
body11 = doc.addObject("PartDesign::Body", "Body010")

sketch11 = doc.addObject("Sketcher::SketchObject", "Sketch010")
body11.addObject(sketch11)
sketch11.AttachmentSupport = (doc.getObject("XZ_Plane010"), [""])
sketch11.MapMode = "FlatFace"
sketch11.AttachmentOffset = App.Placement(V(0, 0, -45 * 25.4), App.Rotation())
sketch11.addGeometry([
    Part.LineSegment(V(361.9, 63.5, 0), V(360.4, 63.5, 0)),
    Part.LineSegment(V(360.4, 63.5, 0), V(360.4, 0, 0)),
    Part.LineSegment(V(360.4, 0, 0), V(423.9, 0, 0)),
    Part.LineSegment(V(423.9, 0, 0), V(423.9, 1.6, 0)),
    Part.ArcOfCircle(Part.Circle(V(420.7, 1.6, 0), V(0, 0, 1), 3.2), math.radians(0), math.radians(90)),
    Part.LineSegment(V(420.7, 4.8, 0), V(371.5, 4.8, 0)),
    Part.ArcOfCircle(Part.Circle(V(371.5, 11.1, 0), V(0, 0, 1), 6.3), math.radians(180), math.radians(270)),
    Part.LineSegment(V(365.1, 11.1, 0), V(365.1, 60.3, 0)),
    Part.ArcOfCircle(Part.Circle(V(361.9, 60.3, 0), V(0, 0, 1), 3.2), math.radians(0), math.radians(90)),
], False)
sketch11.addConstraint([
    Sketcher.Constraint("Coincident", 0, 2, 1, 1),
    Sketcher.Constraint("Coincident", 1, 2, 2, 1),
    Sketcher.Constraint("Coincident", 2, 2, 3, 1),
    Sketcher.Constraint("Tangent", 3, 2, 4, 1),
    Sketcher.Constraint("Tangent", 4, 2, 5, 1),
    Sketcher.Constraint("Tangent", 5, 2, 6, 2),
    Sketcher.Constraint("Tangent", 6, 1, 7, 1),
    Sketcher.Constraint("Tangent", 7, 2, 8, 1),
    Sketcher.Constraint("Tangent", 8, 2, 0, 1),
    Sketcher.Constraint("Horizontal", 0),
    Sketcher.Constraint("Vertical", 1),
    Sketcher.Constraint("Horizontal", 2),
    Sketcher.Constraint("Vertical", 3),
    Sketcher.Constraint("Horizontal", 5),
    Sketcher.Constraint("Vertical", 7),
    Sketcher.Constraint("Equal", 4, 8),
    Sketcher.Constraint("PointOnObject", 1, 2, -1),
    Sketcher.Constraint("Equal", 2, 1),
    Sketcher.Constraint("Equal", 0, 3),
    Sketcher.Constraint("Radius", 6, Q("0.25 in")),
    Sketcher.Constraint("DistanceX", 2, 1, 2, 2, Q("2.5 in")),
    Sketcher.Constraint("Radius", 4, Q("0.125 in")),
    Sketcher.Constraint("DistanceX", 0, 2, 0, 1, Q("0.0625 in")),
    Sketcher.Constraint("DistanceX", -1, 1, 8, 3, Q("14.25 in")),
])
sketch11.setExpression("Constraints[19]", "Params.sketch11_radius")
sketch11.setExpression("Constraints[20]", "Params.sketch11_width")
sketch11.setExpression("Constraints[21]", "Params.sketch11_radius2")
sketch11.setExpression("Constraints[22]", "Params.sketch11_width2")
pad10 = doc.addObject("PartDesign::Pad", "Pad009")
body11.addObject(pad10)
pad10.Profile = sketch11
pad10.setExpression("Length", "Params.pad10_length")
body12 = doc.addObject("PartDesign::Body", "Body011")

sketch12 = doc.addObject("Sketcher::SketchObject", "Sketch011")
body12.addObject(sketch12)
sketch12.AttachmentSupport = (doc.getObject("XZ_Plane011"), [""])
sketch12.MapMode = "FlatFace"
sketch12.AttachmentOffset = App.Placement(V(0, 0, -45 * 25.4), App.Rotation())
sketch12.addGeometry([
    Part.LineSegment(V(-423.9, 1.6, 0), V(-423.9, 0, 0)),
    Part.LineSegment(V(-423.9, 0, 0), V(-360.4, 0, 0)),
    Part.LineSegment(V(-360.4, 0, 0), V(-360.4, 63.5, 0)),
    Part.LineSegment(V(-360.4, 63.5, 0), V(-361.9, 63.5, 0)),
    Part.ArcOfCircle(Part.Circle(V(-361.9, 60.3, 0), V(0, 0, 1), 3.2), math.radians(90), math.radians(180)),
    Part.LineSegment(V(-365.1, 60.3, 0), V(-365.1, 11.1, 0)),
    Part.ArcOfCircle(Part.Circle(V(-371.5, 11.1, 0), V(0, 0, 1), 6.3), math.radians(-90), math.radians(0)),
    Part.LineSegment(V(-371.5, 4.8, 0), V(-420.7, 4.8, 0)),
    Part.ArcOfCircle(Part.Circle(V(-420.7, 1.6, 0), V(0, 0, 1), 3.2), math.radians(90), math.radians(180)),
], False)
sketch12.addConstraint([
    Sketcher.Constraint("Coincident", 0, 2, 1, 1),
    Sketcher.Constraint("Coincident", 1, 2, 2, 1),
    Sketcher.Constraint("Coincident", 2, 2, 3, 1),
    Sketcher.Constraint("Tangent", 3, 2, 4, 1),
    Sketcher.Constraint("Tangent", 4, 2, 5, 1),
    Sketcher.Constraint("Tangent", 5, 2, 6, 2),
    Sketcher.Constraint("Tangent", 6, 1, 7, 1),
    Sketcher.Constraint("Tangent", 7, 2, 8, 1),
    Sketcher.Constraint("Tangent", 8, 2, 0, 1),
    Sketcher.Constraint("Vertical", 0),
    Sketcher.Constraint("Horizontal", 1),
    Sketcher.Constraint("Vertical", 2),
    Sketcher.Constraint("Horizontal", 3),
    Sketcher.Constraint("Vertical", 5),
    Sketcher.Constraint("Horizontal", 7),
    Sketcher.Constraint("Equal", 4, 8),
    Sketcher.Constraint("PointOnObject", 0, 2, -1),
    Sketcher.Constraint("Equal", 3, 0),
    Sketcher.Constraint("Equal", 1, 2),
    Sketcher.Constraint("Radius", 6, Q("0.25 in")),
    Sketcher.Constraint("DistanceX", 1, 1, 1, 2, Q("2.5 in")),
    Sketcher.Constraint("Radius", 4, Q("0.125 in")),
    Sketcher.Constraint("DistanceX", 3, 2, 3, 1, Q("0.0625 in")),
    Sketcher.Constraint("DistanceX", 4, 3, -1, 1, Q("14.25 in")),
])
sketch12.setExpression("Constraints[19]", "Params.sketch12_radius")
sketch12.setExpression("Constraints[20]", "Params.sketch12_width")
sketch12.setExpression("Constraints[21]", "Params.sketch12_radius2")
sketch12.setExpression("Constraints[22]", "Params.sketch12_width2")
pad11 = doc.addObject("PartDesign::Pad", "Pad010")
body12.addObject(pad11)
pad11.Profile = sketch12
pad11.setExpression("Length", "Params.pad11_length")
mirroring.Visibility = False

doc.recompute()
